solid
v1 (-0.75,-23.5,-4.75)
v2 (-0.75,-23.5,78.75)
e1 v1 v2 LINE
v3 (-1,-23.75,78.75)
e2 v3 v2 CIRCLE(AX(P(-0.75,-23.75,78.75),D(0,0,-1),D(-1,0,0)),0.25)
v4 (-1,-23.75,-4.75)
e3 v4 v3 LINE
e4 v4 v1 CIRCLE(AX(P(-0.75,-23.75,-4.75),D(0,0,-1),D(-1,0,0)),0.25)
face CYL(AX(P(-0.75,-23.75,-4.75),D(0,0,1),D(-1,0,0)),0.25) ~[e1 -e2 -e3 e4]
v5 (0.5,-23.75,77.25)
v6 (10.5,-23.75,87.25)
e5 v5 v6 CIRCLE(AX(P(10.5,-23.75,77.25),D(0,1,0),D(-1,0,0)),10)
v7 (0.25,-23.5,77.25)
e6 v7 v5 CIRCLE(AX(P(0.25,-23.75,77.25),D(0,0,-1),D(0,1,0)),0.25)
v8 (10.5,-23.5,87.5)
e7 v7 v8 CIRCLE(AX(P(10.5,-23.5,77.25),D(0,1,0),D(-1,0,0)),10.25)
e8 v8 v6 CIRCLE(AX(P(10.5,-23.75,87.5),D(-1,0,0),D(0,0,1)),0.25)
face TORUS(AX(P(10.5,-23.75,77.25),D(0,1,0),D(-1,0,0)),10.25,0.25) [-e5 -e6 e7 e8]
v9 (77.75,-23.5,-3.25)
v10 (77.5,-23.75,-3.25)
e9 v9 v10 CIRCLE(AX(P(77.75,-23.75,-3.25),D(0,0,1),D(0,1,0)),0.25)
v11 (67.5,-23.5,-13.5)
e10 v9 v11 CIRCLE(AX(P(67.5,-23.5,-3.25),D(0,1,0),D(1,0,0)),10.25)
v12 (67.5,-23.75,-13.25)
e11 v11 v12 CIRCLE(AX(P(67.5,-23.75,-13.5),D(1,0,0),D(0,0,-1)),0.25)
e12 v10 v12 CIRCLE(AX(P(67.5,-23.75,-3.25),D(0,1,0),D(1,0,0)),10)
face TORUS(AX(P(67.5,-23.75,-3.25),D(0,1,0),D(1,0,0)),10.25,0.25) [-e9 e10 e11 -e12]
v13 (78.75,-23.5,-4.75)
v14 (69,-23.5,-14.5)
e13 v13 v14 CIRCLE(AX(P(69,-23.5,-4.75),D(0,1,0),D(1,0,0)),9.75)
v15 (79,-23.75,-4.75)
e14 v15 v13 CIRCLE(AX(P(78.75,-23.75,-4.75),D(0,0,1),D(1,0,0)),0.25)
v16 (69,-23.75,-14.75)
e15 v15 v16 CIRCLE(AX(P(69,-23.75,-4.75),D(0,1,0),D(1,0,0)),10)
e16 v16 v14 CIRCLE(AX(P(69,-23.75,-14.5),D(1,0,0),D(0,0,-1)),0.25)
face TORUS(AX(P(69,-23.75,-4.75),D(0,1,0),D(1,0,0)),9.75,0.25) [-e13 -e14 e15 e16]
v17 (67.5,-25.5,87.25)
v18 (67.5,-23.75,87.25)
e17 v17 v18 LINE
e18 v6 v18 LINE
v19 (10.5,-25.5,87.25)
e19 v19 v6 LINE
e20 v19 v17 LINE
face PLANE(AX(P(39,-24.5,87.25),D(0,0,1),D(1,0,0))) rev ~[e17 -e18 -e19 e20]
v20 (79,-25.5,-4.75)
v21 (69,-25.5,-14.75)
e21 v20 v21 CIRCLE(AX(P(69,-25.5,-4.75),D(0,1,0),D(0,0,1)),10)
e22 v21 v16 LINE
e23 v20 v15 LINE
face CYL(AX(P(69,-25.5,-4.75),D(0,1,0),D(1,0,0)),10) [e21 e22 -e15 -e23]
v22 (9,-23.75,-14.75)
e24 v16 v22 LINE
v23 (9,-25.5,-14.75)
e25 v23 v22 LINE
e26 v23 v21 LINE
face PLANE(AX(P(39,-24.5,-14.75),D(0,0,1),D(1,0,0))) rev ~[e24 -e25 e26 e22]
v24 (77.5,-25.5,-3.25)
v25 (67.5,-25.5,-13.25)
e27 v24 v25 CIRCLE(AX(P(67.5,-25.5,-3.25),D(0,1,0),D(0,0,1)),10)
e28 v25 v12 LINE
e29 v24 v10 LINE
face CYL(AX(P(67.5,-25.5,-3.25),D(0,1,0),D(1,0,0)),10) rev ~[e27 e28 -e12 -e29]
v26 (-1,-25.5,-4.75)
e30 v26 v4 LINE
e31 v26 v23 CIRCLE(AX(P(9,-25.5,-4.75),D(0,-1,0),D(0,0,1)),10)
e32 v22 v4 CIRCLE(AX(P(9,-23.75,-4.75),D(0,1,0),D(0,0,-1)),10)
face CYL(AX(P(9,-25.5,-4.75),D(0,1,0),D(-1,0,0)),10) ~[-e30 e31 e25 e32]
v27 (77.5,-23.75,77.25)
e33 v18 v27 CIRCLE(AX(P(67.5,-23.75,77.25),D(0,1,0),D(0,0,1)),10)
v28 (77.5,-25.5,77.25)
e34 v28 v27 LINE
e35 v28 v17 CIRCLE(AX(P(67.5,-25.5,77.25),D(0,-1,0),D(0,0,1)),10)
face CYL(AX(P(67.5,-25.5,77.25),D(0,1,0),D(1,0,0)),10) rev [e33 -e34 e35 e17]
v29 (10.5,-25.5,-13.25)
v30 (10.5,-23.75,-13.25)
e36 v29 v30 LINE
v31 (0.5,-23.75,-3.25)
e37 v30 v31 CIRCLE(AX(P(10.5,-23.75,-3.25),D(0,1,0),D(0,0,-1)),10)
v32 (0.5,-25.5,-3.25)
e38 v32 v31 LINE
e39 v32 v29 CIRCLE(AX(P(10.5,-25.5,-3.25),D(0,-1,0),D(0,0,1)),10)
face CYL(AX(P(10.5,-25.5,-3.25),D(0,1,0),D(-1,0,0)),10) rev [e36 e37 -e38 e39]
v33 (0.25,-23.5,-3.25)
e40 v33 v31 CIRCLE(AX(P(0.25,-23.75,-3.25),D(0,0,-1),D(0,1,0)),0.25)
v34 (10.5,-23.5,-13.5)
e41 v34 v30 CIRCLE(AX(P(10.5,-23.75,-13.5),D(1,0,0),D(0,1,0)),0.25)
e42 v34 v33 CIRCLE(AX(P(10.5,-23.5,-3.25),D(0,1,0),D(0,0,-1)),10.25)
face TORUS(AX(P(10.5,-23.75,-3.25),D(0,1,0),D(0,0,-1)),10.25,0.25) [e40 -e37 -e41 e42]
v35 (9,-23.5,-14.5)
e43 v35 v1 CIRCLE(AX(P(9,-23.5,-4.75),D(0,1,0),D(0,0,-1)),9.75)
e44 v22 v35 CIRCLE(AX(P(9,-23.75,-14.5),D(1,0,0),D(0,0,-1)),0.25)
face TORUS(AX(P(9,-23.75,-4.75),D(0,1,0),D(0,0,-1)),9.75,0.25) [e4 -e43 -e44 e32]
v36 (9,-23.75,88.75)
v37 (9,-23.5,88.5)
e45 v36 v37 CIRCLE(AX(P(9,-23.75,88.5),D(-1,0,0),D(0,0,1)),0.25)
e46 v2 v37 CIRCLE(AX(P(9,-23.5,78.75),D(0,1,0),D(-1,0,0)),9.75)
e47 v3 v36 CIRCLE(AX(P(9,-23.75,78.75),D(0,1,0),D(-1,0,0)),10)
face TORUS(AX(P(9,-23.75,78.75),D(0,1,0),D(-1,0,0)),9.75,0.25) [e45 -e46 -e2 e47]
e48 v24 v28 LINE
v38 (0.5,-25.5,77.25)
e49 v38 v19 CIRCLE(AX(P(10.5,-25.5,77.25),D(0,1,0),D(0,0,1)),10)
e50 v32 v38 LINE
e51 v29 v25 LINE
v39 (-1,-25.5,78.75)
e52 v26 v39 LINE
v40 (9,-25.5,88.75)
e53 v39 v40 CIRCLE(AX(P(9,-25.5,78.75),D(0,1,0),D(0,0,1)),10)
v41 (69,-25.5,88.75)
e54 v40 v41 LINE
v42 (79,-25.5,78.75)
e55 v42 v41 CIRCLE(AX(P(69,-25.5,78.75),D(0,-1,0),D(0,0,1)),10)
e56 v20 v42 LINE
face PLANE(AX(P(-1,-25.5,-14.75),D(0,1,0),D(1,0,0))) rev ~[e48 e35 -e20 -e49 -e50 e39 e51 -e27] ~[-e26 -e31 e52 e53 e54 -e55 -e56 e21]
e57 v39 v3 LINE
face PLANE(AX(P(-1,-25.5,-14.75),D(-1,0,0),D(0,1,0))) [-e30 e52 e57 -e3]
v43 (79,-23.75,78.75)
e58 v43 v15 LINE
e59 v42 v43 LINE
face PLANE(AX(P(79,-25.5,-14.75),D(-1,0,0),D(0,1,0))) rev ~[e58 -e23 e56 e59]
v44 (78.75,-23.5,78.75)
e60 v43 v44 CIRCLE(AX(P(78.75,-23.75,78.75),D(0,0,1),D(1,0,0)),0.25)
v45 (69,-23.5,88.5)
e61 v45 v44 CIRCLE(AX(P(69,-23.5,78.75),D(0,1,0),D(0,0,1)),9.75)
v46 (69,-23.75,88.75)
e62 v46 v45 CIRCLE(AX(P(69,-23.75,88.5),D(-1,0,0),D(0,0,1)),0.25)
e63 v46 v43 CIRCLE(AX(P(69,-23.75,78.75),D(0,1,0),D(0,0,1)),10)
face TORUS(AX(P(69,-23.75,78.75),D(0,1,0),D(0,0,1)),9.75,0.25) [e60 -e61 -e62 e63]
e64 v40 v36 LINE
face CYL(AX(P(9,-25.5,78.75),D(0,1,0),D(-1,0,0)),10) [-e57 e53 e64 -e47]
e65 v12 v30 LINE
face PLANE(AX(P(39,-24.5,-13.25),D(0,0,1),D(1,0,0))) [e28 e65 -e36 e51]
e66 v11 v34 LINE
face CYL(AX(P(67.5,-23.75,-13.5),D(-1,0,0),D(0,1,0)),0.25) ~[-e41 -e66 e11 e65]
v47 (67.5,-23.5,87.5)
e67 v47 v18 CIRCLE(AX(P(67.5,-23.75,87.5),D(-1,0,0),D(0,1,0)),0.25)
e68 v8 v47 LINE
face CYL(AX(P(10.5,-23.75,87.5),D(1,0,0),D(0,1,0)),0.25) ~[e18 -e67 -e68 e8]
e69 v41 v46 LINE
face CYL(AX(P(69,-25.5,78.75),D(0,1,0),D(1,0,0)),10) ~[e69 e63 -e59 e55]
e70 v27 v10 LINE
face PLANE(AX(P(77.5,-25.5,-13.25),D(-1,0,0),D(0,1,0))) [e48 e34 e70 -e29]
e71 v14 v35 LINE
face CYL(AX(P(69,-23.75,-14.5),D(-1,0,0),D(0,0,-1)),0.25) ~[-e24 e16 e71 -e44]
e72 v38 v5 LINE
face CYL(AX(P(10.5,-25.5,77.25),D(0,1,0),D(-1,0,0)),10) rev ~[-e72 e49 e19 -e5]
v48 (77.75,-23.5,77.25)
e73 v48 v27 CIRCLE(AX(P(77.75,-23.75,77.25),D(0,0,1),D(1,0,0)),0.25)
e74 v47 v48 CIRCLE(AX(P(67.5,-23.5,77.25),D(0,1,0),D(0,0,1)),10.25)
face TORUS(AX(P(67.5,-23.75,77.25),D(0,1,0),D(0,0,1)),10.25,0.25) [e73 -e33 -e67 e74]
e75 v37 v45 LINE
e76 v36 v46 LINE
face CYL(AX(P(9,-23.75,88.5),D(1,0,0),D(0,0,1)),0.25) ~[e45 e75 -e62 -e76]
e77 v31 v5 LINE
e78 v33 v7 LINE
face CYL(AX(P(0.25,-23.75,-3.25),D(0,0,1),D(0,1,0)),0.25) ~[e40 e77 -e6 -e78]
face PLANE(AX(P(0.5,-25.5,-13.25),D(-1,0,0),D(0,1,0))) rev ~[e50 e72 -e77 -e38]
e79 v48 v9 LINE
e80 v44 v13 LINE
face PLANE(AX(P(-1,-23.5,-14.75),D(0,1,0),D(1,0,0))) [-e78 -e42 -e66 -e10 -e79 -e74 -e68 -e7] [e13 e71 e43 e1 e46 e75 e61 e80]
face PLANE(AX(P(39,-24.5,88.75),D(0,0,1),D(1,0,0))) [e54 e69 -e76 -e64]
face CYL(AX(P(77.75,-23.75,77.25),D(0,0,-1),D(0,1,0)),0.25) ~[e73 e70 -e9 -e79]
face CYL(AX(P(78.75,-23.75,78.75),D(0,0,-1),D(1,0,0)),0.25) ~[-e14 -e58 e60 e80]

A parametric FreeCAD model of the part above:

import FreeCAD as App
import Part
import Sketcher
from FreeCAD import Vector


def edges_at(feature, points):
    """Names of the edges that pass closest to the given points."""
    edges = feature.Shape.Edges
    near = lambda p: min(range(len(edges)), key=lambda i: edges[i].distToShape(Part.Vertex(*p))[0])
    return sorted({f"Edge{near(p) + 1}" for p in points})

doc = App.newDocument("Part")
params = doc.addObject("Spreadsheet::Sheet", "Params")
for row, (alias, value) in enumerate([
    ("sketch1_width", "77 mm"),
    ("sketch1_height", "2 mm"),
    ("pad1_length", "100.5 mm"),
    ("fillet_radius", "10 mm"),
    ("sketch2_width", "80 mm"),
    ("sketch2_height", "2 mm"),
    ("pad2_length", "103.5 mm"),
    ("fillet2_radius", "10 mm"),
    ("fillet3_radius", "0.25 mm"),
], start=1):
    params.set(f"A{row}", alias)
    params.set(f"B{row}", "=" + value)
    params.setAlias(f"B{row}", alias)

body = doc.addObject("PartDesign::Body", "Body")

sketch1 = doc.addObject("Sketcher::SketchObject", "Sketch")
body.addObject(sketch1)
sketch1.AttachmentSupport = (doc.XY_Plane, [""])
sketch1.MapMode = "FlatFace"
sketch1.AttachmentOffset = App.Placement(Vector(0, 0, -13.25), App.Rotation())
sketch1.addGeometry([
    Part.LineSegment(Vector(0.5, -24, 0), Vector(0.5, -26, 0)),
    Part.LineSegment(Vector(0.5, -26, 0), Vector(77.5, -26, 0)),
    Part.LineSegment(Vector(77.5, -26, 0), Vector(77.5, -24, 0)),
    Part.LineSegment(Vector(77.5, -24, 0), Vector(0.5, -24, 0)),
], False)
sketch1.addConstraint([
    Sketcher.Constraint("Coincident", 0, 2, 1, 1),
    Sketcher.Constraint("Coincident", 1, 2, 2, 1),
    Sketcher.Constraint("Coincident", 2, 2, 3, 1),
    Sketcher.Constraint("Coincident", 3, 2, 0, 1),
    Sketcher.Constraint("Vertical", 0),
    Sketcher.Constraint("Horizontal", 1),
    Sketcher.Constraint("Vertical", 2),
    Sketcher.Constraint("Horizontal", 3),
    Sketcher.Constraint("DistanceX", 1, 1, 1, 2, 77.0),
    Sketcher.Constraint("DistanceY", 0, 2, 0, 1, 2.0),
    Sketcher.Constraint("DistanceY", 0, 2, -1, 1, 26.0),
    Sketcher.Constraint("DistanceX", -1, 1, 0, 2, 0.5),
])
sketch1.setExpression("Constraints[8]", "Params.sketch1_width")
sketch1.setExpression("Constraints[9]", "Params.sketch1_height")
pad1 = doc.addObject("PartDesign::Pad", "Pad")
body.addObject(pad1)
pad1.Profile = sketch1
pad1.setExpression("Length", "Params.pad1_length")
doc.recompute()

fillet = doc.addObject("PartDesign::Fillet", "Fillet")
body.addObject(fillet)
fillet.Base = (pad1, edges_at(pad1, [
    (0.5, -25, 87.25),
    (0.5, -25, -13.25),
    (77.5, -25, 87.25),
    (77.5, -25, -13.25),
]))
fillet.setExpression("Radius", "Params.fillet_radius")
body2 = doc.addObject("PartDesign::Body", "Body001")
doc.recompute()

body.Placement = App.Placement(Vector(0, 0.5, 0), App.Rotation(Vector(0, 0, 1), 0))
boolean = doc.addObject("PartDesign::Boolean", "Boolean")
body2.addObject(boolean)
boolean.Type = "Fuse"
boolean.addObjects([body])
body3 = doc.addObject("PartDesign::Body", "Body002")

sketch2 = doc.addObject("Sketcher::SketchObject", "Sketch001")
body3.addObject(sketch2)
sketch2.AttachmentSupport = (doc.getObject("XY_Plane002"), [""])
sketch2.MapMode = "FlatFace"
sketch2.AttachmentOffset = App.Placement(Vector(0, 0, -14.75), App.Rotation())
sketch2.addGeometry([
    Part.LineSegment(Vector(-1, -24, 0), Vector(-1, -26, 0)),
    Part.LineSegment(Vector(-1, -26, 0), Vector(79, -26, 0)),
    Part.LineSegment(Vector(79, -26, 0), Vector(79, -24, 0)),
    Part.LineSegment(Vector(79, -24, 0), Vector(-1, -24, 0)),
], False)
sketch2.addConstraint([
    Sketcher.Constraint("Coincident", 0, 2, 1, 1),
    Sketcher.Constraint("Coincident", 1, 2, 2, 1),
    Sketcher.Constraint("Coincident", 2, 2, 3, 1),
    Sketcher.Constraint("Coincident", 3, 2, 0, 1),
    Sketcher.Constraint("Vertical", 0),
    Sketcher.Constraint("Horizontal", 1),
    Sketcher.Constraint("Vertical", 2),
    Sketcher.Constraint("Horizontal", 3),
    Sketcher.Constraint("DistanceX", 1, 1, 1, 2, 80.0),
    Sketcher.Constraint("DistanceY", 0, 2, 0, 1, 2.0),
    Sketcher.Constraint("DistanceX", 0, 2, -1, 1, 1.0),
    Sketcher.Constraint("DistanceY", 0, 2, -1, 1, 26.0),
])
sketch2.setExpression("Constraints[8]", "Params.sketch2_width")
sketch2.setExpression("Constraints[9]", "Params.sketch2_height")
pad2 = doc.addObject("PartDesign::Pad", "Pad001")
body3.addObject(pad2)
pad2.Profile = sketch2
pad2.setExpression("Length", "Params.pad2_length")
doc.recompute()

fillet2 = doc.addObject("PartDesign::Fillet", "Fillet001")
body3.addObject(fillet2)
fillet2.Base = (pad2, edges_at(pad2, [
    (-1, -25, 88.75),
    (-1, -25, -14.75),
    (79, -25, 88.75),
    (79, -25, -14.75),
]))
fillet2.setExpression("Radius", "Params.fillet2_radius")
body4 = doc.addObject("PartDesign::Body", "Body003")
doc.recompute()

body3.Placement = App.Placement(Vector(0, 0.5, 0), App.Rotation(Vector(0, 0, 1), 0))
boolean2 = doc.addObject("PartDesign::Boolean", "Boolean001")
body4.addObject(boolean2)
boolean2.Type = "Fuse"
boolean2.addObjects([body3])
doc.recompute()

boolean3 = doc.addObject("PartDesign::Boolean", "Boolean002")
body4.addObject(boolean3)
boolean3.Type = "Cut"
boolean3.addObjects([body2])
doc.recompute()

fillet3 = doc.addObject("PartDesign::Fillet", "Fillet002")
body4.addObject(fillet3)
fillet3.Base = (boolean3, edges_at(boolean3, [
    (-1, -23.5, 37),
    (1.929, -23.5, -11.821),
    (39, -23.5, -14.75),
    (76.071, -23.5, -11.821),
    (79, -23.5, 37),
    (1.929, -23.5, 85.821),
    (76.071, -23.5, 85.821),
    (39, -23.5, 88.75),
    (0.5, -23.5, 37),
    (3.429, -23.5, 84.321),
    (39, -23.5, 87.25),
    (74.571, -23.5, 84.321),
    (77.5, -23.5, 37),
    (74.571, -23.5, -10.321),
    (39, -23.5, -13.25),
    (3.429, -23.5, -10.321),
]))
fillet3.setExpression("Radius", "Params.fillet3_radius")

doc.recompute()
